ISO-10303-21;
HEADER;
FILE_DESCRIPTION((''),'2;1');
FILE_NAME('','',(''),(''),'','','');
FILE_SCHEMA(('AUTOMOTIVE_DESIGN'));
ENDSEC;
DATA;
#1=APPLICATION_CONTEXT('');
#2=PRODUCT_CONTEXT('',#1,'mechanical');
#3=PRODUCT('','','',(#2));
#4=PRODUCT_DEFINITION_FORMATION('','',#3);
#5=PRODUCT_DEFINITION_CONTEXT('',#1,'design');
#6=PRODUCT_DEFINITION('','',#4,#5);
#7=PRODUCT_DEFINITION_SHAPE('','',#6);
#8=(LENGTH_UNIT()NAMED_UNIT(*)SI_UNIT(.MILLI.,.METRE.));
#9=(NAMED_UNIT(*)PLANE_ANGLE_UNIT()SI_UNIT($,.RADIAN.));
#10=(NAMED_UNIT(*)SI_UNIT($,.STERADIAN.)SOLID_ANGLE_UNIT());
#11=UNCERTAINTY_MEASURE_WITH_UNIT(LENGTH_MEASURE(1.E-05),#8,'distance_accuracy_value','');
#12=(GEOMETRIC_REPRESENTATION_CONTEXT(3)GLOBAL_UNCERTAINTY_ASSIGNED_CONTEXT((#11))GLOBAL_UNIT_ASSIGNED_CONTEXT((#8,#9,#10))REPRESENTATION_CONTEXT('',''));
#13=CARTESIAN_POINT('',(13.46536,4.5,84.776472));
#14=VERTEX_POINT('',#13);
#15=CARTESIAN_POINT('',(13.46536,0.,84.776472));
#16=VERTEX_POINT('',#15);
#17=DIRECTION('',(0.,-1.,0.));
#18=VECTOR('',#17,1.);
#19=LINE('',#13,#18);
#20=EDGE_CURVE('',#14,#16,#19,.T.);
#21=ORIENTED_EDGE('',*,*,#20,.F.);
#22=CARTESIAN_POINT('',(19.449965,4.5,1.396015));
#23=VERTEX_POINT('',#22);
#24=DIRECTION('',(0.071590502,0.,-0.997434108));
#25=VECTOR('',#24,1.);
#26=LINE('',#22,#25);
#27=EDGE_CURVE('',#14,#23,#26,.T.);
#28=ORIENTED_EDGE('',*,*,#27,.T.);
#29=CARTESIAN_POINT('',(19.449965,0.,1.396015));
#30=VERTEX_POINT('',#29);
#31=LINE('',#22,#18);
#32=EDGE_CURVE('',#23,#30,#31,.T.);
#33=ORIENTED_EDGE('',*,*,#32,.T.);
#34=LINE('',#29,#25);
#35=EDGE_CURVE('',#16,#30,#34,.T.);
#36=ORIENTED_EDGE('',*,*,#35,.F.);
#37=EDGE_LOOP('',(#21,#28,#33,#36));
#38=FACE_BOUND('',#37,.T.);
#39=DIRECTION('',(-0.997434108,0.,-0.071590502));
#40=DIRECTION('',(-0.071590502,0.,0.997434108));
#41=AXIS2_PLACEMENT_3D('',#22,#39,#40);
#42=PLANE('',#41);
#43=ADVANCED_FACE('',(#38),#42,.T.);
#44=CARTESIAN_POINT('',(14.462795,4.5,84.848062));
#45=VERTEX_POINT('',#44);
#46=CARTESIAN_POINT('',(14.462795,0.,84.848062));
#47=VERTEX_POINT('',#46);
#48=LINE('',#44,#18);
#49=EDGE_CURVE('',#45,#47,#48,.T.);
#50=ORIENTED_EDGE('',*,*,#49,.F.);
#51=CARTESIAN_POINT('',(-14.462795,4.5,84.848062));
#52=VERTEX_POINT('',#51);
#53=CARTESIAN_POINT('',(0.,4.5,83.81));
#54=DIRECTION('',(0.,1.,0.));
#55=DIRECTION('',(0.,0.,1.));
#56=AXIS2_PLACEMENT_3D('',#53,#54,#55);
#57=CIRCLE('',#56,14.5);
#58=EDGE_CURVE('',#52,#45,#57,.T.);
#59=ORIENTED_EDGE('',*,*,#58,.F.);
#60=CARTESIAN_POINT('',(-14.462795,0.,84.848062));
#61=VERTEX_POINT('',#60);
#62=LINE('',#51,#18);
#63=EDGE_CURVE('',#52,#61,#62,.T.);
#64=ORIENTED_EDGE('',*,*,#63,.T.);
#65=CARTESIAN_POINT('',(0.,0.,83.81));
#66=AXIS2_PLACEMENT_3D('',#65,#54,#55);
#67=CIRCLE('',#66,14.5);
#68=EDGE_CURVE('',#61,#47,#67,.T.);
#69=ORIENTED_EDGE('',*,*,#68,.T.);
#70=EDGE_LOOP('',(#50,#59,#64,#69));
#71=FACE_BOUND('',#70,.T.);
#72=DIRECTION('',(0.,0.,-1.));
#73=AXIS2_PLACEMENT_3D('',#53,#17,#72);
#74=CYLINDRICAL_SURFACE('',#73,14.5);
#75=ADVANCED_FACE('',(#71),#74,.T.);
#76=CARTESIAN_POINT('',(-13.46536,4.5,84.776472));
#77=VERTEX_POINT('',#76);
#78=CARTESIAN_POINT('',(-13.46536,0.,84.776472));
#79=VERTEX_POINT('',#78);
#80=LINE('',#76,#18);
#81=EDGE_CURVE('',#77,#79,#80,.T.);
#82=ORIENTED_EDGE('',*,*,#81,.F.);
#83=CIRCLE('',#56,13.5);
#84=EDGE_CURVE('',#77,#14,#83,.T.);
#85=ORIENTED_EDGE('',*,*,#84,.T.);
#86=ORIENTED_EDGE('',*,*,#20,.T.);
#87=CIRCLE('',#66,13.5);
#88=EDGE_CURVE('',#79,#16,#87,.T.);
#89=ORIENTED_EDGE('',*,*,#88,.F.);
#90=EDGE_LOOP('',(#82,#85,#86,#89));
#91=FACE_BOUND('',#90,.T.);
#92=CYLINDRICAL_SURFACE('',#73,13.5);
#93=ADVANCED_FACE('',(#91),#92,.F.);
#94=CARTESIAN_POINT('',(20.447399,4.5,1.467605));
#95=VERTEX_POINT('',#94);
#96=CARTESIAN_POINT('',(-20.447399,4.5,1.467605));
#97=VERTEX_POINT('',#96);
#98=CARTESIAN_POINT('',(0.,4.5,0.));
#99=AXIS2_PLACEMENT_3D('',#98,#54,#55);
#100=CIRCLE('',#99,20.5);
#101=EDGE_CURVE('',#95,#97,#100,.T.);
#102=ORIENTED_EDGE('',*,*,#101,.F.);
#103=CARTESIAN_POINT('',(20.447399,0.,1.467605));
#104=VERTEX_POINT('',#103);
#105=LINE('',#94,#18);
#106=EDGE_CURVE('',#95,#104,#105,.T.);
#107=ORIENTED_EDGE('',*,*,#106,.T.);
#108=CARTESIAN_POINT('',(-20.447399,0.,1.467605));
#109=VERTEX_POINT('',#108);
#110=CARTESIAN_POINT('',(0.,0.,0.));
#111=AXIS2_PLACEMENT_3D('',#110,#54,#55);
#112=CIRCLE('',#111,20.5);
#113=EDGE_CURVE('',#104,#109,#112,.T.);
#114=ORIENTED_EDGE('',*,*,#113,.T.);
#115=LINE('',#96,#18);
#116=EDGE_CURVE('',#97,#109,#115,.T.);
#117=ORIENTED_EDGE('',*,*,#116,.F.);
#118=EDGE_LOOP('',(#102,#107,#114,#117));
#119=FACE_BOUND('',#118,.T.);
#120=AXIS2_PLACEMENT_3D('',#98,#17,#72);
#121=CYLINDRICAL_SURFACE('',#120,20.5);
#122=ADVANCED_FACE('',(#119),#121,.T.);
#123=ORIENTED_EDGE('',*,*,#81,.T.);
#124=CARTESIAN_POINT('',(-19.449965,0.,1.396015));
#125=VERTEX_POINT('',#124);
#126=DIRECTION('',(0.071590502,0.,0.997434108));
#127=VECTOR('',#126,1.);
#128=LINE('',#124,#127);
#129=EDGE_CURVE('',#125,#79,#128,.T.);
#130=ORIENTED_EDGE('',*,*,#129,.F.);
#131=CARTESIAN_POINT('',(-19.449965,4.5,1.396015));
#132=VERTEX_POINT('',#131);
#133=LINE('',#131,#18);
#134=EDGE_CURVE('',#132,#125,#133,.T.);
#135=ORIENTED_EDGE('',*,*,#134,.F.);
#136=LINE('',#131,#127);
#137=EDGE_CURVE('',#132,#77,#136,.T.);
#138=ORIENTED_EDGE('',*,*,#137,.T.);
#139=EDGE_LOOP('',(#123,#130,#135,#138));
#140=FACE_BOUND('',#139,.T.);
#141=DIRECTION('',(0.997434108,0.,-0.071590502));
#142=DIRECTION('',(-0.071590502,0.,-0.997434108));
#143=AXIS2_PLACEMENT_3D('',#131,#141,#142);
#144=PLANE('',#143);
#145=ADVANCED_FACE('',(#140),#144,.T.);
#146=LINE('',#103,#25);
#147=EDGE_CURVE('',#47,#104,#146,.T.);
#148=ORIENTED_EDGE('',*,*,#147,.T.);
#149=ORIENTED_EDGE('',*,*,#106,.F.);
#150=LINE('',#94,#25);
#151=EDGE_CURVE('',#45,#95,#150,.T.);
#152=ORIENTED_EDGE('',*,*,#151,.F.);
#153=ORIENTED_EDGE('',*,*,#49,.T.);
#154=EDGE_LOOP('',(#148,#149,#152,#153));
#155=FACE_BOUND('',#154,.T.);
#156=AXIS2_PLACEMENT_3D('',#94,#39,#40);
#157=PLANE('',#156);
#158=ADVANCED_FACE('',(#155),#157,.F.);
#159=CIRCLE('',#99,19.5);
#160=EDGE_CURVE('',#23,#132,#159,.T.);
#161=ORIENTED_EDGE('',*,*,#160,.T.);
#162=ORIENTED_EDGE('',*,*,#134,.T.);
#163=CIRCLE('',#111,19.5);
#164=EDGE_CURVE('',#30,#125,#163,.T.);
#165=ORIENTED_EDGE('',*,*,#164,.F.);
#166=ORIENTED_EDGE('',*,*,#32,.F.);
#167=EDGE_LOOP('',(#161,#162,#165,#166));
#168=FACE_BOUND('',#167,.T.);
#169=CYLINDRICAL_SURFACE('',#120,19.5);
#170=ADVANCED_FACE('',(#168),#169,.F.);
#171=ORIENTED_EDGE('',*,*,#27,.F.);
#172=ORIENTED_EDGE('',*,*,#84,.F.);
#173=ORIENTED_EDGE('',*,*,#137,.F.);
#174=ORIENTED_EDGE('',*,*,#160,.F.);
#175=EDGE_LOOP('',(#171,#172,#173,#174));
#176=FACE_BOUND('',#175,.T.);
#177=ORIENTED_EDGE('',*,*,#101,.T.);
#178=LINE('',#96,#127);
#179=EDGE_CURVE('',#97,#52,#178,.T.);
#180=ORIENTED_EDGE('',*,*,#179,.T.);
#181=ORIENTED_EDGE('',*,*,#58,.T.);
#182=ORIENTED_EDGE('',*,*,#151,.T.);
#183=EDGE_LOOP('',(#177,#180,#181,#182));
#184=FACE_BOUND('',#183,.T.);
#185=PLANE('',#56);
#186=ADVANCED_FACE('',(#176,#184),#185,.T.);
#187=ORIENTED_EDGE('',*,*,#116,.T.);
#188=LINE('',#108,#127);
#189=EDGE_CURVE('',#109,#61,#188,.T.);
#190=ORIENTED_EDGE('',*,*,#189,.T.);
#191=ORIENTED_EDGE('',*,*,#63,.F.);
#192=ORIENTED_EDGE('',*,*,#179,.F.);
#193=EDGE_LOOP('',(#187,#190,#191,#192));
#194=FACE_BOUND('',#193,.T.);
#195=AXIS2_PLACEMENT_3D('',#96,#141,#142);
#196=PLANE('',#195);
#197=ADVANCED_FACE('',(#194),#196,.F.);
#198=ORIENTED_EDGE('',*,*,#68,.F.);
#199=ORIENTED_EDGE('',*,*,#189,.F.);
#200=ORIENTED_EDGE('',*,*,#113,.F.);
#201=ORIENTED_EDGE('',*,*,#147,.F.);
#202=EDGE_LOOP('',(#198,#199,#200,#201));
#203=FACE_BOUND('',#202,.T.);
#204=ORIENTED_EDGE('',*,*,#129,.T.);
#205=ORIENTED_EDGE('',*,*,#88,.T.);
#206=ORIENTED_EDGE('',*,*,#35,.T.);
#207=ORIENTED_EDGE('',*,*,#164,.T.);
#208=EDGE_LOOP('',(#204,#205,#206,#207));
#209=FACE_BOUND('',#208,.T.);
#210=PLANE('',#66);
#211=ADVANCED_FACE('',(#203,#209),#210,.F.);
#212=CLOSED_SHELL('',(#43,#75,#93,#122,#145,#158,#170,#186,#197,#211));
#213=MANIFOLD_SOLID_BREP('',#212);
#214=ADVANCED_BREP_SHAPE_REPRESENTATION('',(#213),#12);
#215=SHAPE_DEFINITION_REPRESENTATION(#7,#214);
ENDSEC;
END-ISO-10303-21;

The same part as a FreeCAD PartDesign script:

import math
import FreeCAD as App
import Part
import Sketcher

doc = App.newDocument("Part")
body = doc.addObject("PartDesign::Body", "Body")

sketch1 = doc.addObject("Sketcher::SketchObject", "Sketch")
body.addObject(sketch1)
sketch1.AttachmentSupport = (doc.XZ_Plane, [""])
sketch1.MapMode = "FlatFace"
sketch1.addGeometry([
    Part.LineSegment(App.Vector(14, 85, 0), App.Vector(20, 1, 0)),
    Part.ArcOfCircle(Part.Circle(App.Vector(0, 0, 0), App.Vector(0, 0, 1), 20), math.radians(176), math.radians(364)),
    Part.LineSegment(App.Vector(-20, 1, 0), App.Vector(-14, 85, 0)),
    Part.ArcOfCircle(Part.Circle(App.Vector(0, 84, 0), App.Vector(0, 0, 1), 14), math.radians(4), math.radians(176)),
    Part.ArcOfCircle(Part.Circle(App.Vector(0, 0, 0), App.Vector(0, 0, 1), 20), math.radians(176), math.radians(364)),
    Part.LineSegment(App.Vector(19, 1, 0), App.Vector(13, 85, 0)),
    Part.ArcOfCircle(Part.Circle(App.Vector(0, 84, 0), App.Vector(0, 0, 1), 14), math.radians(4), math.radians(176)),
    Part.LineSegment(App.Vector(-13, 85, 0), App.Vector(-19, 1, 0)),
], False)
sketch1.addConstraint([
    Sketcher.Constraint("Tangent", 0, 2, 1, 2),
    Sketcher.Constraint("Tangent", 1, 1, 2, 1),
    Sketcher.Constraint("Tangent", 2, 2, 3, 2),
    Sketcher.Constraint("Tangent", 3, 1, 0, 1),
    Sketcher.Constraint("Tangent", 4, 2, 5, 1),
    Sketcher.Constraint("Tangent", 5, 2, 6, 1),
    Sketcher.Constraint("Tangent", 6, 2, 7, 1),
    Sketcher.Constraint("Tangent", 7, 2, 4, 1),
    Sketcher.Constraint("Coincident", 1, 3, -1, 1),
    Sketcher.Constraint("Coincident", 4, 3, -1, 1),
    Sketcher.Constraint("Coincident", 6, 3, 3, 3),
    Sketcher.Constraint("PointOnObject", 3, 3, -2),
    Sketcher.Constraint("Parallel", 0, 5),
    Sketcher.Constraint("Radius", 1, 20.5),
    Sketcher.Constraint("Radius", 3, 14.5),
    Sketcher.Constraint("Radius", 4, 19.5),
    Sketcher.Constraint("DistanceY", -1, 1, 3, 3, 83.81),
])
pad1 = doc.addObject("PartDesign::Pad", "Pad")
body.addObject(pad1)
pad1.Profile = sketch1
pad1.Length = 4.5
pad1.Reversed = True

doc.recompute()
